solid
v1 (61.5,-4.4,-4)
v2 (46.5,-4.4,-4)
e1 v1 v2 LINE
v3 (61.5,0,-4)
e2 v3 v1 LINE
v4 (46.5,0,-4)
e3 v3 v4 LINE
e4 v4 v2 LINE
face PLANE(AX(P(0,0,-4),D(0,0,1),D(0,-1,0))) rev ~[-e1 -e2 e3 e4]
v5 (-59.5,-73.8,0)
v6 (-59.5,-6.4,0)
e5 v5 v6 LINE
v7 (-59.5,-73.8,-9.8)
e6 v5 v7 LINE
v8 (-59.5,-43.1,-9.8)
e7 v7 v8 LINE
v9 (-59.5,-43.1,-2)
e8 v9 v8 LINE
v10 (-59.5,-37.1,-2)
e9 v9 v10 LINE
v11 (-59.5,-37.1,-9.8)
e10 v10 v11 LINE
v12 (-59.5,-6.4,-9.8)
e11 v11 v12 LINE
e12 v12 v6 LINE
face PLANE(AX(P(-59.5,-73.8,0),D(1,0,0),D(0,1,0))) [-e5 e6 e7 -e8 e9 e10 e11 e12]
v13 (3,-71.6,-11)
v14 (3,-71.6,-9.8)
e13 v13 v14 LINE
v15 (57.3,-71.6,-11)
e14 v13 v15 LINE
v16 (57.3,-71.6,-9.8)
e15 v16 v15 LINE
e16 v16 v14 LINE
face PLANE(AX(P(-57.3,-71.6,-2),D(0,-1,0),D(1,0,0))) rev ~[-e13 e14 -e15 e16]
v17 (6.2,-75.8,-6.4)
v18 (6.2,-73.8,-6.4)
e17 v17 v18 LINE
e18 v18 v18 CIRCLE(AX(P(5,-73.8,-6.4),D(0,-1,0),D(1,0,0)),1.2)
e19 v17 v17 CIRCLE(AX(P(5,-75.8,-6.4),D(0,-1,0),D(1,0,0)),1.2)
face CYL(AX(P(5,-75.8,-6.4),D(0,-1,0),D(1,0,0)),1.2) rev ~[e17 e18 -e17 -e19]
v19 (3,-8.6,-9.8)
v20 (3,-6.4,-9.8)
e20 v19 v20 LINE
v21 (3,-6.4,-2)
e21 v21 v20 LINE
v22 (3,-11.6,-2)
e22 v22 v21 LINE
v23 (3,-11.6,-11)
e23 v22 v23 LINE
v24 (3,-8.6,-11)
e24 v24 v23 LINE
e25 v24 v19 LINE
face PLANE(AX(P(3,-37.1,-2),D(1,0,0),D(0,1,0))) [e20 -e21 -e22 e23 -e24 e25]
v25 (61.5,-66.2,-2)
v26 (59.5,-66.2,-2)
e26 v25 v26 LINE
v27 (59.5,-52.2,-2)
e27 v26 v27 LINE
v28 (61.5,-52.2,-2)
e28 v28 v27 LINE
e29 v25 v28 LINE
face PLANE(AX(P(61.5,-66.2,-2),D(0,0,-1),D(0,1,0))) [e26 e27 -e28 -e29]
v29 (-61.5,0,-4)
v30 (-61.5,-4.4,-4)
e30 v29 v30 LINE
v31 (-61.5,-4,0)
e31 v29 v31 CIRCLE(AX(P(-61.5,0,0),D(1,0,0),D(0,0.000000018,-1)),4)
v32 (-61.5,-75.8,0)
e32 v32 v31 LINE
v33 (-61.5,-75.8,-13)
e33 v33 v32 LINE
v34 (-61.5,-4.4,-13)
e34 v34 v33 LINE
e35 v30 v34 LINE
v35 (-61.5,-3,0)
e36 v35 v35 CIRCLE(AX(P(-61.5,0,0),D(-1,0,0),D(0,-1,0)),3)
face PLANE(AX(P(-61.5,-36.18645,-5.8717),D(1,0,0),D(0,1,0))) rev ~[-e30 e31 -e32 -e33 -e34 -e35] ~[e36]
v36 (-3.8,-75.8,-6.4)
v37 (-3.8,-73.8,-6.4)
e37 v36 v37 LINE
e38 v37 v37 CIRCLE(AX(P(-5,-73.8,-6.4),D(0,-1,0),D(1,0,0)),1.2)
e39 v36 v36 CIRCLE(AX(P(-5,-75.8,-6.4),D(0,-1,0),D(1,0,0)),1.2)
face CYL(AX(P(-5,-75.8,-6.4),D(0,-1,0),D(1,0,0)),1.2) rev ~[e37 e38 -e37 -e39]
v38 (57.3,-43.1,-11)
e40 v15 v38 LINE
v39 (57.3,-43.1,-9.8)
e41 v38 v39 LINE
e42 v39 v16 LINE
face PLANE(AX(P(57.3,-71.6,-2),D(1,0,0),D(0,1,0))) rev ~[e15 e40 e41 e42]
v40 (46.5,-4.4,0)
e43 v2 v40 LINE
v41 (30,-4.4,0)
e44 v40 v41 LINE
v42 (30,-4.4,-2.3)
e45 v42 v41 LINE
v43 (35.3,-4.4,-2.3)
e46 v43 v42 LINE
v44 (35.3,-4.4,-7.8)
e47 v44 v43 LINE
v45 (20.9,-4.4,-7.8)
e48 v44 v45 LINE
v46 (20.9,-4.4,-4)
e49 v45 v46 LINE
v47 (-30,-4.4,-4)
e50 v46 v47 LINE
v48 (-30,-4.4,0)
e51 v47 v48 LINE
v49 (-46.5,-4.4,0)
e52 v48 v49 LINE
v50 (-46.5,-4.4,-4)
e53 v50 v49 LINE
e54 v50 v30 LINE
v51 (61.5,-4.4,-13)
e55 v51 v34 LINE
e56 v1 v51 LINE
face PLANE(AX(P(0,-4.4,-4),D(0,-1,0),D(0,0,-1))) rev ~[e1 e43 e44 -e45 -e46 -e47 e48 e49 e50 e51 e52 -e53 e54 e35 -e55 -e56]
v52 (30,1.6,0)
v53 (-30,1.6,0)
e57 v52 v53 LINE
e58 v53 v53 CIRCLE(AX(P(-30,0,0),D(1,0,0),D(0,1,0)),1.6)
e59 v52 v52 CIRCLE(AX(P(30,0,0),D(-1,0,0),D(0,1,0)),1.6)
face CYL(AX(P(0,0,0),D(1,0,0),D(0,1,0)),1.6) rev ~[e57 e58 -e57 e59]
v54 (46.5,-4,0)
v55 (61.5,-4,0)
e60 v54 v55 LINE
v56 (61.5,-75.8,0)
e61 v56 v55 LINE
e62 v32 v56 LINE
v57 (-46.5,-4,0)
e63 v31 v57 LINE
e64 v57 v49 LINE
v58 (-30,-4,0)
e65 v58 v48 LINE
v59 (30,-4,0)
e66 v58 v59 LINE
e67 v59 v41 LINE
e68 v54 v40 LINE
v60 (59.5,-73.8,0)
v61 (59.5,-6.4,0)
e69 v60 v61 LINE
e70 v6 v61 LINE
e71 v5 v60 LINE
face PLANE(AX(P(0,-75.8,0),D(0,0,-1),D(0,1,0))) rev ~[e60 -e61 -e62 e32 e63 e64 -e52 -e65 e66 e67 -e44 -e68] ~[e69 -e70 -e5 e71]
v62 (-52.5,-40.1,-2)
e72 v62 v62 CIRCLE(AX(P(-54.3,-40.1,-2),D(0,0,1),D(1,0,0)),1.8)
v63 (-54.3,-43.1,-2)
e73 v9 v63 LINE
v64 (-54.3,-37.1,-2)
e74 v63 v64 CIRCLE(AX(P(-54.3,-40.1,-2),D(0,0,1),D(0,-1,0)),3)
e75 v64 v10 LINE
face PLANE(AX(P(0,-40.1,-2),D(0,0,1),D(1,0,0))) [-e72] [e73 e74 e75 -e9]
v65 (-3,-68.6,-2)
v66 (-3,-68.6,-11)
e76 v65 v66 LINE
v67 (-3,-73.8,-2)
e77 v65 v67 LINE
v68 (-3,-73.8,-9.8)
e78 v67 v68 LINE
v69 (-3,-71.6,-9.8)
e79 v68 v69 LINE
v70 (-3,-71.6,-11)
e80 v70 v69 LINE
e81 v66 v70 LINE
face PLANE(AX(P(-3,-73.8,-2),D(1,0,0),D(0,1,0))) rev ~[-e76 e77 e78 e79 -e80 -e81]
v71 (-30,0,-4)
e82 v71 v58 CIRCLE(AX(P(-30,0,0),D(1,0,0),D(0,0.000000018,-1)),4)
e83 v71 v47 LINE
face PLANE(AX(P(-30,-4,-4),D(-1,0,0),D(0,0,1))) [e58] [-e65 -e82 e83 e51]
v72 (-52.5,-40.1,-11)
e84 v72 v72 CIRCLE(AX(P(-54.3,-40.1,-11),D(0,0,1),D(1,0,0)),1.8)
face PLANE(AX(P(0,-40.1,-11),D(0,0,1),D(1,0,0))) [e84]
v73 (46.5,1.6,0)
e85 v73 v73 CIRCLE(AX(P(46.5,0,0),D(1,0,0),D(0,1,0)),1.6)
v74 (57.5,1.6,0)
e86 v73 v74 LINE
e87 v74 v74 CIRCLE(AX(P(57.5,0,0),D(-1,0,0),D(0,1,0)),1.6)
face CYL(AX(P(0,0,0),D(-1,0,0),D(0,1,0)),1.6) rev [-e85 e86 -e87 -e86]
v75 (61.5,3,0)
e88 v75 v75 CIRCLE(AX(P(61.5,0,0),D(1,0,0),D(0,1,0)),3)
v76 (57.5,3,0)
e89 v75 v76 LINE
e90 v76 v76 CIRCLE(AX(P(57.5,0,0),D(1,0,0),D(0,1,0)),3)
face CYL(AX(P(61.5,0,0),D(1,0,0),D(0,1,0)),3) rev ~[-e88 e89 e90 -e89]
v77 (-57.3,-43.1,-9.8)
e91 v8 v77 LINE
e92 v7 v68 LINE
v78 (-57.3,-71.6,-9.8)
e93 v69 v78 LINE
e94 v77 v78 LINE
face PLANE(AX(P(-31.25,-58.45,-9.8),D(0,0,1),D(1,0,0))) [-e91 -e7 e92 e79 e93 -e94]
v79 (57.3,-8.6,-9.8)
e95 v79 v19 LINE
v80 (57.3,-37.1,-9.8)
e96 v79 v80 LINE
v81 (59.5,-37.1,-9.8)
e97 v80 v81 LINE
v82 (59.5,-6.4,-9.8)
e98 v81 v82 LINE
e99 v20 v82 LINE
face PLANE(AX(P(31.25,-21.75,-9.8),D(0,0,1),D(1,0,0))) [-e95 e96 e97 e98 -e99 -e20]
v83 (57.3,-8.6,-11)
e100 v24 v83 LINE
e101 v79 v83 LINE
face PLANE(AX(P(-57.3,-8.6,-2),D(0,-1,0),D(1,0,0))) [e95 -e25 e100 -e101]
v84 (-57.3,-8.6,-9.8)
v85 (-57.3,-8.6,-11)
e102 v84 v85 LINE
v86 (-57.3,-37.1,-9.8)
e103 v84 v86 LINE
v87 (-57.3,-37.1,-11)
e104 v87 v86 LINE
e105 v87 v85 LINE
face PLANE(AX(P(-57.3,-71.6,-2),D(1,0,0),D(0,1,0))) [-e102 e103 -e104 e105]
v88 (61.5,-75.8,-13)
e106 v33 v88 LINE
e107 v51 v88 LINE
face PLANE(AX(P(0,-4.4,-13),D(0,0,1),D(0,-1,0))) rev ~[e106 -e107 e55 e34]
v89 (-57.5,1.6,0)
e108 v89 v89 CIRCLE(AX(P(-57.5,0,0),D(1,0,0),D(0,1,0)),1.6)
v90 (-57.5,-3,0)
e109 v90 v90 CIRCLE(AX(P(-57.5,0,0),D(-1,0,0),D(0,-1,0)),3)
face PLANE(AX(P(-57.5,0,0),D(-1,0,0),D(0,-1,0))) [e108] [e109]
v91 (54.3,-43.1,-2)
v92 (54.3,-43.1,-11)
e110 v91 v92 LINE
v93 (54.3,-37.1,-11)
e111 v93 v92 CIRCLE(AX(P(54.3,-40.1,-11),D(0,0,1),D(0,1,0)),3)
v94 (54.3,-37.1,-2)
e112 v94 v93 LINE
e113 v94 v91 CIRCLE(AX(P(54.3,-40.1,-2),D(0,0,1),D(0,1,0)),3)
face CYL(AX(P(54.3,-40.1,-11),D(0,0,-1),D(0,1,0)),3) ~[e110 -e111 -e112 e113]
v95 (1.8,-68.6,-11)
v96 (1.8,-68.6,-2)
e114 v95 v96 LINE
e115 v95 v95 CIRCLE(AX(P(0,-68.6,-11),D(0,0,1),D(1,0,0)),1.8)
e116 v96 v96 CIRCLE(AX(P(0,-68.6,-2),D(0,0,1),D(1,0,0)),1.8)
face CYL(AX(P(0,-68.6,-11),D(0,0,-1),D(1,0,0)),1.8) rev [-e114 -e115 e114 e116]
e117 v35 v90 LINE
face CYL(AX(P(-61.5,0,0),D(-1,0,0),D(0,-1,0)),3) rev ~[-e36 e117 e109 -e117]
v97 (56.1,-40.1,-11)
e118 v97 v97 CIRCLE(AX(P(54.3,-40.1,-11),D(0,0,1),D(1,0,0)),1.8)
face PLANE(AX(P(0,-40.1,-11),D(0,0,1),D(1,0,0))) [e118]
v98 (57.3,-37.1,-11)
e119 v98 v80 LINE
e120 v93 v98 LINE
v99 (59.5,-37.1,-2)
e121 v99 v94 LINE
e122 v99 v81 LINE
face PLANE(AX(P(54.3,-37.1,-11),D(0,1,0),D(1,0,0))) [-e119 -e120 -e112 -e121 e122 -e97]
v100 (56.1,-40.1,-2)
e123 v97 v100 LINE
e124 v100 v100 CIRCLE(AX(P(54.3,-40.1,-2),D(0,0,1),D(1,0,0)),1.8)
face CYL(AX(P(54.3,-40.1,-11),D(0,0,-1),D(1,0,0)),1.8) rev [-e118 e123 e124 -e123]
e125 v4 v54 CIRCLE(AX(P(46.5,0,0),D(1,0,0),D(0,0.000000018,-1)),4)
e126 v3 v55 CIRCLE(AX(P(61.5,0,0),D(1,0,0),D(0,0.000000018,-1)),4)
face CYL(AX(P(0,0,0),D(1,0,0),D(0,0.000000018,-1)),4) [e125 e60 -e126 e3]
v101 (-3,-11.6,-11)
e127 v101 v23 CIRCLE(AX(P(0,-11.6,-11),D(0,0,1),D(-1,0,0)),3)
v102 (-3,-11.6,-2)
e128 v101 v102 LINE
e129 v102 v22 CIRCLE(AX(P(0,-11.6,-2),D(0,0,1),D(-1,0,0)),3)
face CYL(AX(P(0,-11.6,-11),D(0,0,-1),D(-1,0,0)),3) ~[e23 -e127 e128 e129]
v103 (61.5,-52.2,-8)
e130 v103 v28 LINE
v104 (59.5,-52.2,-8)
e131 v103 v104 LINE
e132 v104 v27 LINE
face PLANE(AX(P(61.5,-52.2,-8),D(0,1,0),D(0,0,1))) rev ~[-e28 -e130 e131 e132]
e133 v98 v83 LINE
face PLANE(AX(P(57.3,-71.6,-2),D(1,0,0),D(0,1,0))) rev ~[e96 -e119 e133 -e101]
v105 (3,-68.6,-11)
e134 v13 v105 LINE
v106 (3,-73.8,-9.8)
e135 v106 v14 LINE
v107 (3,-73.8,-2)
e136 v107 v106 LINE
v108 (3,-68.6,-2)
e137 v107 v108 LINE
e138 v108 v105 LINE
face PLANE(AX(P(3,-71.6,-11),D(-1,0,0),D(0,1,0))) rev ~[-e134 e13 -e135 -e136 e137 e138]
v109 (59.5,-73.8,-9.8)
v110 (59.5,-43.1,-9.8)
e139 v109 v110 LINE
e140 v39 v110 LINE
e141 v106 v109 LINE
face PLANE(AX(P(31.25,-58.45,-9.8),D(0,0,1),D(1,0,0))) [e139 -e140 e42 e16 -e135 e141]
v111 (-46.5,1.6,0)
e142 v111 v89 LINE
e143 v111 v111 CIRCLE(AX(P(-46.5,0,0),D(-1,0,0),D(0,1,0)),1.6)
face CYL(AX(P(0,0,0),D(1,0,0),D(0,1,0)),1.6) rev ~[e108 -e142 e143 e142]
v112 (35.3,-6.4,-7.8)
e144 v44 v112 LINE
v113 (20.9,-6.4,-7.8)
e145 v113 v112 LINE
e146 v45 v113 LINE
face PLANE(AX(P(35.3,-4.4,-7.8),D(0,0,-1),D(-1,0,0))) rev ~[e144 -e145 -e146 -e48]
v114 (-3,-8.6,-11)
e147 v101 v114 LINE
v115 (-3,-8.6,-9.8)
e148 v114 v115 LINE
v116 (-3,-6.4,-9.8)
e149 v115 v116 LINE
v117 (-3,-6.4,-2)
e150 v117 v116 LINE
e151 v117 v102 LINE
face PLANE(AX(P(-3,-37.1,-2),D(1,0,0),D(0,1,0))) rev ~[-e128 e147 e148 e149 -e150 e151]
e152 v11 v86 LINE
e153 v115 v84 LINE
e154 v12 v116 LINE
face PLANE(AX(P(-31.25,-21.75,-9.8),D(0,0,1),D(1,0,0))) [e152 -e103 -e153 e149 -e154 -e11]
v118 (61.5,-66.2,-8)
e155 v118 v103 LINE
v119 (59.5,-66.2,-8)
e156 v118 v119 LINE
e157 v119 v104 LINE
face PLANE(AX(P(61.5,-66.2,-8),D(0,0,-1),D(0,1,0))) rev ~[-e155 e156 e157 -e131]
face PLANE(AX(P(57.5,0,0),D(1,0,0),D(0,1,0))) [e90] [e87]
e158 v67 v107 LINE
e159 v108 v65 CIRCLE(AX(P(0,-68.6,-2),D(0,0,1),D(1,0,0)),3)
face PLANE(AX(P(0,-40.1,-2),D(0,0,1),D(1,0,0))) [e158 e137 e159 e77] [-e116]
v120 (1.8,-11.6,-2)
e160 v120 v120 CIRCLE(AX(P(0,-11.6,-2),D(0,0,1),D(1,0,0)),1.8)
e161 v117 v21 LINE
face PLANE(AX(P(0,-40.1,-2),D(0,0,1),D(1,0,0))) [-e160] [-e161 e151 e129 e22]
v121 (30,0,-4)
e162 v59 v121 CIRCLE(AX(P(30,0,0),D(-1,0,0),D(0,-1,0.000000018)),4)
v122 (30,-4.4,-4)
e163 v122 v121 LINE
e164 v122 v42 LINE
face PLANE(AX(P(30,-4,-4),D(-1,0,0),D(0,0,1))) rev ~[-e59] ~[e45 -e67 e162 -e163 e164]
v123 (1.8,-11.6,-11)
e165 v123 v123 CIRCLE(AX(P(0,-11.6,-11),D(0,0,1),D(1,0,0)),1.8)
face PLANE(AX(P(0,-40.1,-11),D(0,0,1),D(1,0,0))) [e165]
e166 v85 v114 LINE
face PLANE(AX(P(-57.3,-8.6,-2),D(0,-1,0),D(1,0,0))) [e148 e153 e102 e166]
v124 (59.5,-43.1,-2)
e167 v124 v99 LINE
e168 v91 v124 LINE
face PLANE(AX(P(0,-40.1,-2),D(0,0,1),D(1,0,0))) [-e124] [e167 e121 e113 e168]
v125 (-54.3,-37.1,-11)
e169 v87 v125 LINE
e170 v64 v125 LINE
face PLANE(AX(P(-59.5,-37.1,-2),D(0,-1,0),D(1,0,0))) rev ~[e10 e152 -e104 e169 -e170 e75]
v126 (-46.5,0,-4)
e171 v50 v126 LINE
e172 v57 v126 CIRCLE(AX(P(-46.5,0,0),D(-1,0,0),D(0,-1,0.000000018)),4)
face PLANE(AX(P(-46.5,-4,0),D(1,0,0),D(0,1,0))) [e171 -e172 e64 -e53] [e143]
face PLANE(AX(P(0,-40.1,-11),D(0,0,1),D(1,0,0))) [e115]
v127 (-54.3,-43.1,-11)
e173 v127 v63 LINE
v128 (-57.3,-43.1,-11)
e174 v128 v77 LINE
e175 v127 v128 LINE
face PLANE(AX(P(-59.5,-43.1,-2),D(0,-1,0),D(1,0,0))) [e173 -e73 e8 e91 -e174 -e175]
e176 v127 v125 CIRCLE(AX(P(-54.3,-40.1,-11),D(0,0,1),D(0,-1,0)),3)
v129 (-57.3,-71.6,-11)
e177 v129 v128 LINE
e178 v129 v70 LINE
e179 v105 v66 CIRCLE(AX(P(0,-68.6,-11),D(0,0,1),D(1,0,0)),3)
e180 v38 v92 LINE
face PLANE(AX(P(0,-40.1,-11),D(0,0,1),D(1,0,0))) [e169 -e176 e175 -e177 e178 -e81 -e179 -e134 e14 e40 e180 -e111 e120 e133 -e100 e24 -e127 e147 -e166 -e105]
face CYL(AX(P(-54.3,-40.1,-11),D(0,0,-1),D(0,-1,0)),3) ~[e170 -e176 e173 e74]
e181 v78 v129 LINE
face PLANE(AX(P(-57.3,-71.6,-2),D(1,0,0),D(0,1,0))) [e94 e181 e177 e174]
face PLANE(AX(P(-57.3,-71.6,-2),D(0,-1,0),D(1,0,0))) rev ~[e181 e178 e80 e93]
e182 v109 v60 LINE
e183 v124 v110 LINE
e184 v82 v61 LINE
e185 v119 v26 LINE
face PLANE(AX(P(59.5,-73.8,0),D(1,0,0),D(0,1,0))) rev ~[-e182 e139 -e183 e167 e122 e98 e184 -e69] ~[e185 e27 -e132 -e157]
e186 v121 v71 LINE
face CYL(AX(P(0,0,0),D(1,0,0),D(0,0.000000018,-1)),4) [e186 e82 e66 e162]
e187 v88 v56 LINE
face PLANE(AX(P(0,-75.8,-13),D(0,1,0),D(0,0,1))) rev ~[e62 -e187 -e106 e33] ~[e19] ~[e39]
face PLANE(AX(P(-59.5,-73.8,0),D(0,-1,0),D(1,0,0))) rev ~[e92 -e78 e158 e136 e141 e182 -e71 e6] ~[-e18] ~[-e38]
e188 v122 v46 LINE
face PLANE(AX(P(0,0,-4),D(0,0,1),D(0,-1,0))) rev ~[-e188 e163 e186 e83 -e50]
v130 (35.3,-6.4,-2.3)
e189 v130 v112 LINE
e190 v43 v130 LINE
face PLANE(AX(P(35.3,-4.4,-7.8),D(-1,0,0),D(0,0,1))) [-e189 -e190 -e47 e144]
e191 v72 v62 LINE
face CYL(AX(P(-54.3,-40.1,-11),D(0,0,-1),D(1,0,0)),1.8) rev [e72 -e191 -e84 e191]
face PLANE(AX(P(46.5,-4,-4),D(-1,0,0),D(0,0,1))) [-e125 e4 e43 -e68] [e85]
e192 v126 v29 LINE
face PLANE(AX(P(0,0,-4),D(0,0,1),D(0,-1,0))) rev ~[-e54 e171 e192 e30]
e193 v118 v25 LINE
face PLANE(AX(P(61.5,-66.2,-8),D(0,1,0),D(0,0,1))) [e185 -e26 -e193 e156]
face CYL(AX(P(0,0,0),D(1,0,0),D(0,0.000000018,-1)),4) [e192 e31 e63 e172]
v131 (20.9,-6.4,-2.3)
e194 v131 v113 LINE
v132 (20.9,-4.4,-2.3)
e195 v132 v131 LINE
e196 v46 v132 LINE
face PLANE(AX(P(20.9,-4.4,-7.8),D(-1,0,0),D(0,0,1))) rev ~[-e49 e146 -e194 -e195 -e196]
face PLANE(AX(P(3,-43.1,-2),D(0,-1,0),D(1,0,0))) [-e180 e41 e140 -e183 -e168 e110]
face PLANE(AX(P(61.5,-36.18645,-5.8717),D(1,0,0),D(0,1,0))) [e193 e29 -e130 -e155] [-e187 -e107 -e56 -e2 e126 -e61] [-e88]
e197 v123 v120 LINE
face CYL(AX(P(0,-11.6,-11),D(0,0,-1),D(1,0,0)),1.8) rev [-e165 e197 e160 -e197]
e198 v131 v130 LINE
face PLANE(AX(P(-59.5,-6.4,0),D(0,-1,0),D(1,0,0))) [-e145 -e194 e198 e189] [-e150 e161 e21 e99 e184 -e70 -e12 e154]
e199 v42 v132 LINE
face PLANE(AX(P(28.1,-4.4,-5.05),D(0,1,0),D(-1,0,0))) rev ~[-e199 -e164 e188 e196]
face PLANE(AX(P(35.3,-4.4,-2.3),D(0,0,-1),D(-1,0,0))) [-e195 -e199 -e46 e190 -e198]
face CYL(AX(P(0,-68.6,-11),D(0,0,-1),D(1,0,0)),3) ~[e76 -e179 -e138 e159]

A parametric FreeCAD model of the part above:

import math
import FreeCAD as App
import Part
import Sketcher
from FreeCAD import Vector
Q = App.Units.Quantity

doc = App.newDocument("Part")
params = doc.addObject("Spreadsheet::Sheet", "Params")
for row, (alias, value) in enumerate([
    ("sketch1_radius", "4 mm"),
    ("sketch1_diameter", "3.2 mm"),
    ("sketch1_height", "13 mm"),
    ("sketch1_width", "71.8 mm"),
    ("sketch1_width2", "71.4 mm"),
    ("pad1_length", "61.5 mm"),
    ("pad1_length2", "61.5 mm"),
    ("sketch2_height", "8 mm"),
    ("sketch2_width", "16.5 mm"),
    ("sketch3_width", "119 mm"),
    ("sketch3_height", "67.4 mm"),
    ("pocket2_length", "2 mm"),
    ("sketch4_height", "63 mm"),
    ("sketch4_width", "114.6 mm"),
    ("pocket3_length", "9 mm"),
    ("sketch5_radius", "3 mm"),
    ("sketch5_diameter", "3.6 mm"),
    ("sketch5_width", "3 mm"),
    ("pad2_length", "9 mm"),
    ("sketch6_width", "56.5 mm"),
    ("sketch6_height", "30.7 mm"),
    ("pocket4_length", "7.8 mm"),
    ("sketch7_diameter", "2.4 mm"),
    ("pocket5_length", "2 mm"),
    ("sketch8_height", "4 mm"),
    ("sketch8_width", "16.5 mm"),
    ("pocket6_length", "0.4 mm"),
    ("sketch9_width", "14.4 mm"),
    ("sketch9_height", "5.5 mm"),
    ("pocket7_length", "2.2 mm"),
    ("sketch10_width", "14 mm"),
    ("sketch10_height", "6 mm"),
    ("pocket8_length", "2 mm"),
    ("sketch11_diameter", "6 mm"),
    ("pocket9_length", "4 mm"),
    ("sketch12_diameter", "6 mm"),
    ("pocket10_length", "4 mm"),
], start=1):
    params.set(f"A{row}", alias)
    params.set(f"B{row}", "=" + value)
    params.setAlias(f"B{row}", alias)

body = doc.addObject("PartDesign::Body", "Body")

# Sketch on YZ plane
sketch1 = doc.addObject("Sketcher::SketchObject", "Sketch")
body.addObject(sketch1)
sketch1.AttachmentSupport = (doc.YZ_Plane, [""])
sketch1.MapMode = "FlatFace"
sketch1.addGeometry(Part.ArcOfCircle(Part.Circle(Vector(0, 0, 0), Vector(0, 0, 1), 4), math.radians(-90), math.radians(180)), False)
sketch1.addGeometry(Part.LineSegment(Vector(-4, 0, 0), Vector(-75.8, 0, 0)), False)
sketch1.addGeometry(Part.LineSegment(Vector(-75.8, 0, 0), Vector(-75.8, -13, 0)), False)
sketch1.addGeometry(Part.LineSegment(Vector(-75.8, -13, 0), Vector(-4.4, -13, 0)), False)
sketch1.addGeometry(Part.LineSegment(Vector(-4.4, -13, 0), Vector(-4.4, -4, 0)), False)
sketch1.addGeometry(Part.LineSegment(Vector(-4.4, -4, 0), Vector(0, -4, 0)), False)
sketch1.addGeometry(Part.Circle(Vector(0, 0, 0), Vector(0, 0, 1), 1.6), False)
sketch1.addConstraint(Sketcher.Constraint("Coincident", 0, 2, 1, 1))
sketch1.addConstraint(Sketcher.Constraint("Coincident", 1, 2, 2, 1))
sketch1.addConstraint(Sketcher.Constraint("Coincident", 2, 2, 3, 1))
sketch1.addConstraint(Sketcher.Constraint("Coincident", 3, 2, 4, 1))
sketch1.addConstraint(Sketcher.Constraint("Coincident", 4, 2, 5, 1))
sketch1.addConstraint(Sketcher.Constraint("Tangent", 5, 2, 0, 1))
sketch1.addConstraint(Sketcher.Constraint("Horizontal", 1))
sketch1.addConstraint(Sketcher.Constraint("Vertical", 2))
sketch1.addConstraint(Sketcher.Constraint("Horizontal", 3))
sketch1.addConstraint(Sketcher.Constraint("Vertical", 4))
sketch1.addConstraint(Sketcher.Constraint("Horizontal", 5))
sketch1.addConstraint(Sketcher.Constraint("Coincident", 0, 3, -1, 1))
sketch1.addConstraint(Sketcher.Constraint("Coincident", 6, 3, -1, 1))
sketch1.addConstraint(Sketcher.Constraint("PointOnObject", 0, 2, -1))
sketch1.addConstraint(Sketcher.Constraint("Radius", 0, Q("4 mm")))
sketch1.addConstraint(Sketcher.Constraint("Diameter", 6, Q("3.2 mm")))
sketch1.addConstraint(Sketcher.Constraint("DistanceY", 2, 2, 2, 1, Q("13 mm")))
sketch1.addConstraint(Sketcher.Constraint("DistanceX", 1, 2, 1, 1, Q("71.8 mm")))
sketch1.addConstraint(Sketcher.Constraint("DistanceX", 3, 1, 3, 2, Q("71.4 mm")))
sketch1.setExpression("Constraints[14]", "Params.sketch1_radius")
sketch1.setExpression("Constraints[15]", "Params.sketch1_diameter")
sketch1.setExpression("Constraints[16]", "Params.sketch1_height")
sketch1.setExpression("Constraints[17]", "Params.sketch1_width")
sketch1.setExpression("Constraints[18]", "Params.sketch1_width2")
pad1 = doc.addObject("PartDesign::Pad", "Pad")
body.addObject(pad1)
pad1.Profile = sketch1
pad1.Type = "TwoLengths"
pad1.setExpression("Length", "Params.pad1_length")
pad1.setExpression("Length2", "Params.pad1_length2")

# Sketch on XY plane
sketch2 = doc.addObject("Sketcher::SketchObject", "Sketch001")
body.addObject(sketch2)
sketch2.AttachmentSupport = (doc.XY_Plane, [""])
sketch2.MapMode = "FlatFace"
sketch2.addGeometry(Part.LineSegment(Vector(-46, 4, 0), Vector(-46, -4, 0)), False)
sketch2.addGeometry(Part.LineSegment(Vector(-46, -4, 0), Vector(-30, -4, 0)), False)
sketch2.addGeometry(Part.LineSegment(Vector(-30, -4, 0), Vector(-30, 4, 0)), False)
sketch2.addGeometry(Part.LineSegment(Vector(-30, 4, 0), Vector(-46, 4, 0)), False)
sketch2.addGeometry(Part.LineSegment(Vector(30, 4, 0), Vector(30, -4, 0)), False)
sketch2.addGeometry(Part.LineSegment(Vector(30, -4, 0), Vector(46, -4, 0)), False)
sketch2.addGeometry(Part.LineSegment(Vector(46, -4, 0), Vector(46, 4, 0)), False)
sketch2.addGeometry(Part.LineSegment(Vector(46, 4, 0), Vector(30, 4, 0)), False)
sketch2.addConstraint(Sketcher.Constraint("Coincident", 0, 2, 1, 1))
sketch2.addConstraint(Sketcher.Constraint("Coincident", 1, 2, 2, 1))
sketch2.addConstraint(Sketcher.Constraint("Coincident", 2, 2, 3, 1))
sketch2.addConstraint(Sketcher.Constraint("Coincident", 3, 2, 0, 1))
sketch2.addConstraint(Sketcher.Constraint("Coincident", 4, 2, 5, 1))
sketch2.addConstraint(Sketcher.Constraint("Coincident", 5, 2, 6, 1))
sketch2.addConstraint(Sketcher.Constraint("Coincident", 6, 2, 7, 1))
sketch2.addConstraint(Sketcher.Constraint("Coincident", 7, 2, 4, 1))
sketch2.addConstraint(Sketcher.Constraint("Vertical", 0))
sketch2.addConstraint(Sketcher.Constraint("Horizontal", 1))
sketch2.addConstraint(Sketcher.Constraint("Vertical", 2))
sketch2.addConstraint(Sketcher.Constraint("Horizontal", 3))
sketch2.addConstraint(Sketcher.Constraint("Vertical", 4))
sketch2.addConstraint(Sketcher.Constraint("Horizontal", 5))
sketch2.addConstraint(Sketcher.Constraint("Vertical", 6))
sketch2.addConstraint(Sketcher.Constraint("Horizontal", 7))
sketch2.addConstraint(Sketcher.Constraint("Symmetric", 2, 2, 4, 2, -1, 1))
sketch2.addConstraint(Sketcher.Constraint("Symmetric", 0, 2, 6, 2, -1, 1))
sketch2.addConstraint(Sketcher.Constraint("Horizontal", 1, 2, 4, 2))
sketch2.addConstraint(Sketcher.Constraint("DistanceY", 0, 2, 0, 1, Q("8 mm")))
sketch2.addConstraint(Sketcher.Constraint("DistanceX", 1, 1, 1, 2, Q("16.5 mm")))
sketch2.addConstraint(Sketcher.Constraint("DistanceX", 1, 2, -1, 1, Q("30 mm")))
sketch2.setExpression("Constraints[19]", "Params.sketch2_height")
sketch2.setExpression("Constraints[20]", "Params.sketch2_width")
pocket1 = doc.addObject("PartDesign::Pocket", "Pocket")
body.addObject(pocket1)
pocket1.Profile = sketch2
pocket1.Type = "ThroughAll"
pocket1.Midplane = True

# Sketch on XY plane
sketch3 = doc.addObject("Sketcher::SketchObject", "Sketch002")
body.addObject(sketch3)
sketch3.AttachmentSupport = (doc.XY_Plane, [""])
sketch3.MapMode = "FlatFace"
sketch3.addGeometry(Part.LineSegment(Vector(-60, -6, 0), Vector(-60, -74, 0)), False)
sketch3.addGeometry(Part.LineSegment(Vector(-60, -74, 0), Vector(60, -74, 0)), False)
sketch3.addGeometry(Part.LineSegment(Vector(60, -74, 0), Vector(60, -6, 0)), False)
sketch3.addGeometry(Part.LineSegment(Vector(60, -6, 0), Vector(-60, -6, 0)), False)
sketch3.addConstraint(Sketcher.Constraint("Coincident", 0, 2, 1, 1))
sketch3.addConstraint(Sketcher.Constraint("Coincident", 1, 2, 2, 1))
sketch3.addConstraint(Sketcher.Constraint("Coincident", 2, 2, 3, 1))
sketch3.addConstraint(Sketcher.Constraint("Coincident", 3, 2, 0, 1))
sketch3.addConstraint(Sketcher.Constraint("Vertical", 0))
sketch3.addConstraint(Sketcher.Constraint("Horizontal", 1))
sketch3.addConstraint(Sketcher.Constraint("Vertical", 2))
sketch3.addConstraint(Sketcher.Constraint("Horizontal", 3))
sketch3.addConstraint(Sketcher.Constraint("DistanceX", 1, 1, 1, 2, Q("119 mm")))
sketch3.addConstraint(Sketcher.Constraint("DistanceY", 0, 2, 0, 1, Q("67.4 mm")))
sketch3.addConstraint(Sketcher.Constraint("DistanceX", 0, 2, -1, 1, Q("59.5 mm")))
sketch3.addConstraint(Sketcher.Constraint("DistanceY", 0, 2, -1, 1, Q("73.8 mm")))
sketch3.setExpression("Constraints[8]", "Params.sketch3_width")
sketch3.setExpression("Constraints[9]", "Params.sketch3_height")
pocket2 = doc.addObject("PartDesign::Pocket", "Pocket001")
body.addObject(pocket2)
pocket2.Profile = sketch3
pocket2.setExpression("Length", "Params.pocket2_length")

# Sketch on XY plane
sketch4 = doc.addObject("Sketcher::SketchObject", "Sketch003")
body.addObject(sketch4)
sketch4.AttachmentSupport = (doc.XY_Plane, [""])
sketch4.MapMode = "FlatFace"
sketch4.AttachmentOffset = App.Placement(Vector(0, 0, -2), App.Rotation())
sketch4.addGeometry(Part.LineSegment(Vector(-57, -9, 0), Vector(-57, -72, 0)), False)
sketch4.addGeometry(Part.LineSegment(Vector(-57, -72, 0), Vector(57, -72, 0)), False)
sketch4.addGeometry(Part.LineSegment(Vector(57, -72, 0), Vector(57, -9, 0)), False)
sketch4.addGeometry(Part.LineSegment(Vector(57, -9, 0), Vector(-57, -9, 0)), False)
sketch4.addConstraint(Sketcher.Constraint("Coincident", 0, 2, 1, 1))
sketch4.addConstraint(Sketcher.Constraint("Coincident", 1, 2, 2, 1))
sketch4.addConstraint(Sketcher.Constraint("Coincident", 2, 2, 3, 1))
sketch4.addConstraint(Sketcher.Constraint("Coincident", 3, 2, 0, 1))
sketch4.addConstraint(Sketcher.Constraint("Vertical", 0))
sketch4.addConstraint(Sketcher.Constraint("Horizontal", 1))
sketch4.addConstraint(Sketcher.Constraint("Vertical", 2))
sketch4.addConstraint(Sketcher.Constraint("Horizontal", 3))
sketch4.addConstraint(Sketcher.Constraint("DistanceY", 0, 2, 0, 1, Q("63 mm")))
sketch4.addConstraint(Sketcher.Constraint("DistanceX", 1, 1, 1, 2, Q("114.6 mm")))
sketch4.addConstraint(Sketcher.Constraint("DistanceX", 0, 2, -1, 1, Q("57.3 mm")))
sketch4.addConstraint(Sketcher.Constraint("DistanceY", 0, 2, -1, 1, Q("71.6 mm")))
sketch4.setExpression("Constraints[8]", "Params.sketch4_height")
sketch4.setExpression("Constraints[9]", "Params.sketch4_width")
pocket3 = doc.addObject("PartDesign::Pocket", "Pocket002")
body.addObject(pocket3)
pocket3.Profile = sketch4
pocket3.setExpression("Length", "Params.pocket3_length")

# Sketch on XY plane
sketch5 = doc.addObject("Sketcher::SketchObject", "Sketch004")
body.addObject(sketch5)
sketch5.AttachmentSupport = (doc.XY_Plane, [""])
sketch5.MapMode = "FlatFace"
sketch5.AttachmentOffset = App.Placement(Vector(0, 0, -11), App.Rotation())
sketch5.addGeometry(Part.ArcOfCircle(Part.Circle(Vector(-54.3, -40.1, 0), Vector(0, 0, 1), 3), math.radians(-90), math.radians(90)), False)
sketch5.addGeometry(Part.LineSegment(Vector(-54.3, -37.1, 0), Vector(-57.3, -37.1, 0)), False)
sketch5.addGeometry(Part.LineSegment(Vector(-57.3, -37.1, 0), Vector(-57.3, -43.1, 0)), False)
sketch5.addGeometry(Part.LineSegment(Vector(-57.3, -43.1, 0), Vector(-54.3, -43.1, 0)), False)
sketch5.addGeometry(Part.Circle(Vector(-54.3, -40.1, 0), Vector(0, 0, 1), 1.8), False)
sketch5.addGeometry(Part.ArcOfCircle(Part.Circle(Vector(0, -11.6, 0), Vector(0, 0, 1), 3), math.radians(180), math.radians(360)), False)
sketch5.addGeometry(Part.LineSegment(Vector(3, -11.6, 0), Vector(3, -8.6, 0)), False)
sketch5.addGeometry(Part.LineSegment(Vector(3, -8.6, 0), Vector(-3, -8.6, 0)), False)
sketch5.addGeometry(Part.LineSegment(Vector(-3, -8.6, 0), Vector(-3, -11.6, 0)), False)
sketch5.addGeometry(Part.Circle(Vector(0, -11.6, 0), Vector(0, 0, 1), 1.8), False)
sketch5.addGeometry(Part.ArcOfCircle(Part.Circle(Vector(54.3, -40.1, 0), Vector(0, 0, 1), 3), math.radians(90), math.radians(270)), False)
sketch5.addGeometry(Part.LineSegment(Vector(54.3, -43.1, 0), Vector(57.3, -43.1, 0)), False)
sketch5.addGeometry(Part.LineSegment(Vector(57.3, -43.1, 0), Vector(57.3, -37.1, 0)), False)
sketch5.addGeometry(Part.LineSegment(Vector(57.3, -37.1, 0), Vector(54.3, -37.1, 0)), False)
sketch5.addGeometry(Part.Circle(Vector(54.3, -40.1, 0), Vector(0, 0, 1), 1.8), False)
sketch5.addGeometry(Part.ArcOfCircle(Part.Circle(Vector(0, -68.6, 0), Vector(0, 0, 1), 3), math.radians(0), math.radians(180)), False)
sketch5.addGeometry(Part.LineSegment(Vector(-3, -68.6, 0), Vector(-3, -71.6, 0)), False)
sketch5.addGeometry(Part.LineSegment(Vector(-3, -71.6, 0), Vector(3, -71.6, 0)), False)
sketch5.addGeometry(Part.LineSegment(Vector(3, -71.6, 0), Vector(3, -68.6, 0)), False)
sketch5.addGeometry(Part.Circle(Vector(0, -68.6, 0), Vector(0, 0, 1), 1.8), False)
sketch5.addConstraint(Sketcher.Constraint("Tangent", 0, 2, 1, 1))
sketch5.addConstraint(Sketcher.Constraint("Coincident", 1, 2, 2, 1))
sketch5.addConstraint(Sketcher.Constraint("Coincident", 2, 2, 3, 1))
sketch5.addConstraint(Sketcher.Constraint("Tangent", 3, 2, 0, 1))
sketch5.addConstraint(Sketcher.Constraint("Tangent", 5, 2, 6, 1))
sketch5.addConstraint(Sketcher.Constraint("Coincident", 6, 2, 7, 1))
sketch5.addConstraint(Sketcher.Constraint("Coincident", 7, 2, 8, 1))
sketch5.addConstraint(Sketcher.Constraint("Tangent", 8, 2, 5, 1))
sketch5.addConstraint(Sketcher.Constraint("Tangent", 10, 2, 11, 1))
sketch5.addConstraint(Sketcher.Constraint("Coincident", 11, 2, 12, 1))
sketch5.addConstraint(Sketcher.Constraint("Coincident", 12, 2, 13, 1))
sketch5.addConstraint(Sketcher.Constraint("Tangent", 13, 2, 10, 1))
sketch5.addConstraint(Sketcher.Constraint("Tangent", 15, 2, 16, 1))
sketch5.addConstraint(Sketcher.Constraint("Coincident", 16, 2, 17, 1))
sketch5.addConstraint(Sketcher.Constraint("Coincident", 17, 2, 18, 1))
sketch5.addConstraint(Sketcher.Constraint("Tangent", 18, 2, 15, 1))
sketch5.addConstraint(Sketcher.Constraint("Horizontal", 1))
sketch5.addConstraint(Sketcher.Constraint("Vertical", 2))
sketch5.addConstraint(Sketcher.Constraint("Horizontal", 3))
sketch5.addConstraint(Sketcher.Constraint("Vertical", 6))
sketch5.addConstraint(Sketcher.Constraint("Horizontal", 7))
sketch5.addConstraint(Sketcher.Constraint("Vertical", 8))
sketch5.addConstraint(Sketcher.Constraint("Horizontal", 11))
sketch5.addConstraint(Sketcher.Constraint("Vertical", 12))
sketch5.addConstraint(Sketcher.Constraint("Horizontal", 13))
sketch5.addConstraint(Sketcher.Constraint("Vertical", 16))
sketch5.addConstraint(Sketcher.Constraint("Horizontal", 17))
sketch5.addConstraint(Sketcher.Constraint("Vertical", 18))
sketch5.addConstraint(Sketcher.Constraint("Coincident", 4, 3, 0, 3))
sketch5.addConstraint(Sketcher.Constraint("Coincident", 9, 3, 5, 3))
sketch5.addConstraint(Sketcher.Constraint("Coincident", 14, 3, 10, 3))
sketch5.addConstraint(Sketcher.Constraint("Coincident", 19, 3, 15, 3))
sketch5.addConstraint(Sketcher.Constraint("Equal", 0, 5))
sketch5.addConstraint(Sketcher.Constraint("Equal", 4, 9))
sketch5.addConstraint(Sketcher.Constraint("Equal", 5, 10))
sketch5.addConstraint(Sketcher.Constraint("Equal", 9, 14))
sketch5.addConstraint(Sketcher.Constraint("Equal", 10, 15))
sketch5.addConstraint(Sketcher.Constraint("Equal", 14, 19))
sketch5.addConstraint(Sketcher.Constraint("Symmetric", 0, 3, 10, 3, -2))
sketch5.addConstraint(Sketcher.Constraint("PointOnObject", 5, 3, -2))
sketch5.addConstraint(Sketcher.Constraint("PointOnObject", 15, 3, -2))
sketch5.addConstraint(Sketcher.Constraint("Equal", 3, 11))
sketch5.addConstraint(Sketcher.Constraint("Equal", 13, 6))
sketch5.addConstraint(Sketcher.Constraint("Equal", 8, 16))
sketch5.addConstraint(Sketcher.Constraint("Radius", 0, Q("3 mm")))
sketch5.addConstraint(Sketcher.Constraint("Diameter", 4, Q("3.6 mm")))
sketch5.addConstraint(Sketcher.Constraint("DistanceX", 1, 2, 1, 1, Q("3 mm")))
sketch5.addConstraint(Sketcher.Constraint("DistanceY", 15, 3, 5, 3, Q("57 mm")))
sketch5.addConstraint(Sketcher.Constraint("DistanceX", 0, 3, -1, 1, Q("54.3 mm")))
sketch5.addConstraint(Sketcher.Constraint("DistanceY", 0, 3, -1, 1, Q("40.1 mm")))
sketch5.addConstraint(Sketcher.Constraint("DistanceY", 5, 3, -1, 1, Q("11.6 mm")))
sketch5.setExpression("Constraints[44]", "Params.sketch5_radius")
sketch5.setExpression("Constraints[45]", "Params.sketch5_diameter")
sketch5.setExpression("Constraints[46]", "Params.sketch5_width")
pad2 = doc.addObject("PartDesign::Pad", "Pad001")
body.addObject(pad2)
pad2.Profile = sketch5
pad2.setExpression("Length", "Params.pad2_length")

# Sketch on XY plane
sketch6 = doc.addObject("Sketcher::SketchObject", "Sketch005")
body.addObject(sketch6)
sketch6.AttachmentSupport = (doc.XY_Plane, [""])
sketch6.MapMode = "FlatFace"
sketch6.AttachmentOffset = App.Placement(Vector(0, 0, -2), App.Rotation())
sketch6.addGeometry(Part.LineSegment(Vector(-60, -6, 0), Vector(-60, -37, 0)), False)
sketch6.addGeometry(Part.LineSegment(Vector(-60, -37, 0), Vector(-3, -37, 0)), False)
sketch6.addGeometry(Part.LineSegment(Vector(-3, -37, 0), Vector(-3, -6, 0)), False)
sketch6.addGeometry(Part.LineSegment(Vector(-3, -6, 0), Vector(-60, -6, 0)), False)
sketch6.addGeometry(Part.LineSegment(Vector(3, -6, 0), Vector(3, -37, 0)), False)
sketch6.addGeometry(Part.LineSegment(Vector(3, -37, 0), Vector(60, -37, 0)), False)
sketch6.addGeometry(Part.LineSegment(Vector(60, -37, 0), Vector(60, -6, 0)), False)
sketch6.addGeometry(Part.LineSegment(Vector(60, -6, 0), Vector(3, -6, 0)), False)
sketch6.addGeometry(Part.LineSegment(Vector(3, -43, 0), Vector(3, -74, 0)), False)
sketch6.addGeometry(Part.LineSegment(Vector(3, -74, 0), Vector(60, -74, 0)), False)
sketch6.addGeometry(Part.LineSegment(Vector(60, -74, 0), Vector(60, -43, 0)), False)
sketch6.addGeometry(Part.LineSegment(Vector(60, -43, 0), Vector(3, -43, 0)), False)
sketch6.addGeometry(Part.LineSegment(Vector(-60, -43, 0), Vector(-60, -74, 0)), False)
sketch6.addGeometry(Part.LineSegment(Vector(-60, -74, 0), Vector(-3, -74, 0)), False)
sketch6.addGeometry(Part.LineSegment(Vector(-3, -74, 0), Vector(-3, -43, 0)), False)
sketch6.addGeometry(Part.LineSegment(Vector(-3, -43, 0), Vector(-60, -43, 0)), False)
sketch6.addConstraint(Sketcher.Constraint("Coincident", 0, 2, 1, 1))
sketch6.addConstraint(Sketcher.Constraint("Coincident", 1, 2, 2, 1))
sketch6.addConstraint(Sketcher.Constraint("Coincident", 2, 2, 3, 1))
sketch6.addConstraint(Sketcher.Constraint("Coincident", 3, 2, 0, 1))
sketch6.addConstraint(Sketcher.Constraint("Coincident", 4, 2, 5, 1))
sketch6.addConstraint(Sketcher.Constraint("Coincident", 5, 2, 6, 1))
sketch6.addConstraint(Sketcher.Constraint("Coincident", 6, 2, 7, 1))
sketch6.addConstraint(Sketcher.Constraint("Coincident", 7, 2, 4, 1))
sketch6.addConstraint(Sketcher.Constraint("Coincident", 8, 2, 9, 1))
sketch6.addConstraint(Sketcher.Constraint("Coincident", 9, 2, 10, 1))
sketch6.addConstraint(Sketcher.Constraint("Coincident", 10, 2, 11, 1))
sketch6.addConstraint(Sketcher.Constraint("Coincident", 11, 2, 8, 1))
sketch6.addConstraint(Sketcher.Constraint("Coincident", 12, 2, 13, 1))
sketch6.addConstraint(Sketcher.Constraint("Coincident", 13, 2, 14, 1))
sketch6.addConstraint(Sketcher.Constraint("Coincident", 14, 2, 15, 1))
sketch6.addConstraint(Sketcher.Constraint("Coincident", 15, 2, 12, 1))
sketch6.addConstraint(Sketcher.Constraint("Vertical", 0))
sketch6.addConstraint(Sketcher.Constraint("Horizontal", 1))
sketch6.addConstraint(Sketcher.Constraint("Vertical", 2))
sketch6.addConstraint(Sketcher.Constraint("Horizontal", 3))
sketch6.addConstraint(Sketcher.Constraint("Vertical", 4))
sketch6.addConstraint(Sketcher.Constraint("Horizontal", 5))
sketch6.addConstraint(Sketcher.Constraint("Vertical", 6))
sketch6.addConstraint(Sketcher.Constraint("Horizontal", 7))
sketch6.addConstraint(Sketcher.Constraint("Vertical", 8))
sketch6.addConstraint(Sketcher.Constraint("Horizontal", 9))
sketch6.addConstraint(Sketcher.Constraint("Vertical", 10))
sketch6.addConstraint(Sketcher.Constraint("Horizontal", 11))
sketch6.addConstraint(Sketcher.Constraint("Vertical", 12))
sketch6.addConstraint(Sketcher.Constraint("Horizontal", 13))
sketch6.addConstraint(Sketcher.Constraint("Vertical", 14))
sketch6.addConstraint(Sketcher.Constraint("Horizontal", 15))
sketch6.addConstraint(Sketcher.Constraint("Symmetric", 1, 2, 4, 2, -2))
sketch6.addConstraint(Sketcher.Constraint("Symmetric", 3, 2, 6, 2, -2))
sketch6.addConstraint(Sketcher.Constraint("Symmetric", 9, 2, 12, 2, -2))
sketch6.addConstraint(Sketcher.Constraint("Symmetric", 11, 2, 14, 2, -2))
sketch6.addConstraint(Sketcher.Constraint("Vertical", 7, 2, 8, 2))
sketch6.addConstraint(Sketcher.Constraint("Vertical", 6, 2, 9, 2))
sketch6.addConstraint(Sketcher.Constraint("Equal", 6, 8))
sketch6.addConstraint(Sketcher.Constraint("DistanceX", 1, 1, 1, 2, Q("56.5 mm")))
sketch6.addConstraint(Sketcher.Constraint("DistanceY", 0, 2, 0, 1, Q("30.7 mm")))
sketch6.addConstraint(Sketcher.Constraint("DistanceX", 1, 2, -1, 1, Q("3 mm")))
sketch6.addConstraint(Sketcher.Constraint("DistanceY", 10, 2, 5, 2, Q("6 mm")))
sketch6.addConstraint(Sketcher.Constraint("DistanceY", 0, 2, -1, 1, Q("37.1 mm")))
sketch6.setExpression("Constraints[39]", "Params.sketch6_width")
sketch6.setExpression("Constraints[40]", "Params.sketch6_height")
pocket4 = doc.addObject("PartDesign::Pocket", "Pocket003")
body.addObject(pocket4)
pocket4.Profile = sketch6
pocket4.setExpression("Length", "Params.pocket4_length")

# Sketch on XZ plane
sketch7 = doc.addObject("Sketcher::SketchObject", "Sketch006")
body.addObject(sketch7)
sketch7.AttachmentSupport = (doc.XZ_Plane, [""])
sketch7.MapMode = "FlatFace"
sketch7.AttachmentOffset = App.Placement(Vector(0, 0, 75.8), App.Rotation())
sketch7.addGeometry(Part.Circle(Vector(-5, -6.4, 0), Vector(0, 0, 1), 1.2), False)
sketch7.addGeometry(Part.Circle(Vector(5, -6.4, 0), Vector(0, 0, 1), 1.2), False)
sketch7.addConstraint(Sketcher.Constraint("Equal", 0, 1))
sketch7.addConstraint(Sketcher.Constraint("Symmetric", 0, 3, 1, 3, -2))
sketch7.addConstraint(Sketcher.Constraint("Diameter", 0, Q("2.4 mm")))
sketch7.addConstraint(Sketcher.Constraint("DistanceX", 0, 3, -1, 1, Q("5 mm")))
sketch7.addConstraint(Sketcher.Constraint("DistanceY", 0, 3, -1, 1, Q("6.4 mm")))
sketch7.setExpression("Constraints[2]", "Params.sketch7_diameter")
pocket5 = doc.addObject("PartDesign::Pocket", "Pocket004")
body.addObject(pocket5)
pocket5.Profile = sketch7
pocket5.setExpression("Length", "Params.pocket5_length")

# Sketch on XZ plane
sketch8 = doc.addObject("Sketcher::SketchObject", "Sketch007")
body.addObject(sketch8)
sketch8.AttachmentSupport = (doc.XZ_Plane, [""])
sketch8.MapMode = "FlatFace"
sketch8.AttachmentOffset = App.Placement(Vector(0, 0, 4), App.Rotation())
sketch8.addGeometry(Part.LineSegment(Vector(-30, 0, 0), Vector(-30, -4, 0)), False)
sketch8.addGeometry(Part.LineSegment(Vector(-30, -4, 0), Vector(-46.5, -4, 0)), False)
sketch8.addGeometry(Part.LineSegment(Vector(-46.5, -4, 0), Vector(-46.5, 0, 0)), False)
sketch8.addGeometry(Part.LineSegment(Vector(-46.5, 0, 0), Vector(-30, 0, 0)), False)
sketch8.addGeometry(Part.LineSegment(Vector(46.5, 0, 0), Vector(46.5, -4, 0)), False)
sketch8.addGeometry(Part.LineSegment(Vector(46.5, -4, 0), Vector(30, -4, 0)), False)
sketch8.addGeometry(Part.LineSegment(Vector(30, -4, 0), Vector(30, 0, 0)), False)
sketch8.addGeometry(Part.LineSegment(Vector(30, 0, 0), Vector(46.5, 0, 0)), False)
sketch8.addConstraint(Sketcher.Constraint("Coincident", 0, 2, 1, 1))
sketch8.addConstraint(Sketcher.Constraint("Coincident", 1, 2, 2, 1))
sketch8.addConstraint(Sketcher.Constraint("Coincident", 2, 2, 3, 1))
sketch8.addConstraint(Sketcher.Constraint("Coincident", 3, 2, 0, 1))
sketch8.addConstraint(Sketcher.Constraint("Coincident", 4, 2, 5, 1))
sketch8.addConstraint(Sketcher.Constraint("Coincident", 5, 2, 6, 1))
sketch8.addConstraint(Sketcher.Constraint("Coincident", 6, 2, 7, 1))
sketch8.addConstraint(Sketcher.Constraint("Coincident", 7, 2, 4, 1))
sketch8.addConstraint(Sketcher.Constraint("Vertical", 0))
sketch8.addConstraint(Sketcher.Constraint("Horizontal", 1))
sketch8.addConstraint(Sketcher.Constraint("Vertical", 2))
sketch8.addConstraint(Sketcher.Constraint("Horizontal", 3))
sketch8.addConstraint(Sketcher.Constraint("Vertical", 4))
sketch8.addConstraint(Sketcher.Constraint("Horizontal", 5))
sketch8.addConstraint(Sketcher.Constraint("Vertical", 6))
sketch8.addConstraint(Sketcher.Constraint("Horizontal", 7))
sketch8.addConstraint(Sketcher.Constraint("Symmetric", 3, 2, 6, 2, -1, 1))
sketch8.addConstraint(Sketcher.Constraint("Symmetric", 1, 2, 4, 2, -2))
sketch8.addConstraint(Sketcher.Constraint("PointOnObject", 2, 2, -1))
sketch8.addConstraint(Sketcher.Constraint("DistanceY", 0, 2, 0, 1, Q("4 mm")))
sketch8.addConstraint(Sketcher.Constraint("DistanceX", 1, 2, 1, 1, Q("16.5 mm")))
sketch8.addConstraint(Sketcher.Constraint("DistanceX", 0, 2, -1, 1, Q("30 mm")))
sketch8.setExpression("Constraints[19]", "Params.sketch8_height")
sketch8.setExpression("Constraints[20]", "Params.sketch8_width")
pocket6 = doc.addObject("PartDesign::Pocket", "Pocket005")
body.addObject(pocket6)
pocket6.Profile = sketch8
pocket6.setExpression("Length", "Params.pocket6_length")
pocket6.Reversed = True

# Sketch on XZ plane
sketch9 = doc.addObject("Sketcher::SketchObject", "Sketch008")
body.addObject(sketch9)
sketch9.AttachmentSupport = (doc.XZ_Plane, [""])
sketch9.MapMode = "FlatFace"
sketch9.AttachmentOffset = App.Placement(Vector(0, 0, 4.4), App.Rotation())
sketch9.addGeometry(Part.LineSegment(Vector(35, -2, 0), Vector(35, -8, 0)), False)
sketch9.addGeometry(Part.LineSegment(Vector(35, -8, 0), Vector(21, -8, 0)), False)
sketch9.addGeometry(Part.LineSegment(Vector(21, -8, 0), Vector(21, -2, 0)), False)
sketch9.addGeometry(Part.LineSegment(Vector(21, -2, 0), Vector(35, -2, 0)), False)
sketch9.addConstraint(Sketcher.Constraint("Coincident", 0, 2, 1, 1))
sketch9.addConstraint(Sketcher.Constraint("Coincident", 1, 2, 2, 1))
sketch9.addConstraint(Sketcher.Constraint("Coincident", 2, 2, 3, 1))
sketch9.addConstraint(Sketcher.Constraint("Coincident", 3, 2, 0, 1))
sketch9.addConstraint(Sketcher.Constraint("Vertical", 0))
sketch9.addConstraint(Sketcher.Constraint("Horizontal", 1))
sketch9.addConstraint(Sketcher.Constraint("Vertical", 2))
sketch9.addConstraint(Sketcher.Constraint("Horizontal", 3))
sketch9.addConstraint(Sketcher.Constraint("DistanceX", 1, 2, 1, 1, Q("14.4 mm")))
sketch9.addConstraint(Sketcher.Constraint("DistanceY", 0, 2, 0, 1, Q("5.5 mm")))
sketch9.addConstraint(Sketcher.Constraint("DistanceX", -1, 1, 0, 2, Q("35.3 mm")))
sketch9.addConstraint(Sketcher.Constraint("DistanceY", 0, 2, -1, 1, Q("7.8 mm")))
sketch9.setExpression("Constraints[8]", "Params.sketch9_width")
sketch9.setExpression("Constraints[9]", "Params.sketch9_height")
pocket7 = doc.addObject("PartDesign::Pocket", "Pocket006")
body.addObject(pocket7)
pocket7.Profile = sketch9
pocket7.setExpression("Length", "Params.pocket7_length")
pocket7.Reversed = True

# Sketch on YZ plane
sketch10 = doc.addObject("Sketcher::SketchObject", "Sketch009")
body.addObject(sketch10)
sketch10.AttachmentSupport = (doc.YZ_Plane, [""])
sketch10.MapMode = "FlatFace"
sketch10.AttachmentOffset = App.Placement(Vector(0, 0, 61.5), App.Rotation())
sketch10.addGeometry(Part.LineSegment(Vector(-66, -2, 0), Vector(-66, -8, 0)), False)
sketch10.addGeometry(Part.LineSegment(Vector(-66, -8, 0), Vector(-52, -8, 0)), False)
sketch10.addGeometry(Part.LineSegment(Vector(-52, -8, 0), Vector(-52, -2, 0)), False)
sketch10.addGeometry(Part.LineSegment(Vector(-52, -2, 0), Vector(-66, -2, 0)), False)
sketch10.addConstraint(Sketcher.Constraint("Coincident", 0, 2, 1, 1))
sketch10.addConstraint(Sketcher.Constraint("Coincident", 1, 2, 2, 1))
sketch10.addConstraint(Sketcher.Constraint("Coincident", 2, 2, 3, 1))
sketch10.addConstraint(Sketcher.Constraint("Coincident", 3, 2, 0, 1))
sketch10.addConstraint(Sketcher.Constraint("Vertical", 0))
sketch10.addConstraint(Sketcher.Constraint("Horizontal", 1))
sketch10.addConstraint(Sketcher.Constraint("Vertical", 2))
sketch10.addConstraint(Sketcher.Constraint("Horizontal", 3))
sketch10.addConstraint(Sketcher.Constraint("DistanceX", 1, 1, 1, 2, Q("14 mm")))
sketch10.addConstraint(Sketcher.Constraint("DistanceY", 0, 2, 0, 1, Q("6 mm")))
sketch10.addConstraint(Sketcher.Constraint("DistanceY", 0, 2, -1, 1, Q("8 mm")))
sketch10.addConstraint(Sketcher.Constraint("DistanceX", 0, 2, -1, 1, Q("66.2 mm")))
sketch10.setExpression("Constraints[8]", "Params.sketch10_width")
sketch10.setExpression("Constraints[9]", "Params.sketch10_height")
pocket8 = doc.addObject("PartDesign::Pocket", "Pocket007")
body.addObject(pocket8)
pocket8.Profile = sketch10
pocket8.setExpression("Length", "Params.pocket8_length")

# Sketch on YZ plane
sketch11 = doc.addObject("Sketcher::SketchObject", "Sketch010")
body.addObject(sketch11)
sketch11.AttachmentSupport = (doc.YZ_Plane, [""])
sketch11.MapMode = "FlatFace"
sketch11.AttachmentOffset = App.Placement(Vector(0, 0, 61.5), App.Rotation())
sketch11.addGeometry(Part.Circle(Vector(0, 0, 0), Vector(0, 0, 1), 3), False)
sketch11.addConstraint(Sketcher.Constraint("Coincident", 0, 3, -1, 1))
sketch11.addConstraint(Sketcher.Constraint("Diameter", 0, Q("6 mm")))
sketch11.setExpression("Constraints[1]", "Params.sketch11_diameter")
pocket9 = doc.addObject("PartDesign::Pocket", "Pocket008")
body.addObject(pocket9)
pocket9.Profile = sketch11
pocket9.setExpression("Length", "Params.pocket9_length")

# Sketch on YZ plane
sketch12 = doc.addObject("Sketcher::SketchObject", "Sketch011")
body.addObject(sketch12)
sketch12.AttachmentSupport = (doc.YZ_Plane, [""])
sketch12.MapMode = "FlatFace"
sketch12.AttachmentOffset = App.Placement(Vector(0, 0, -61.5), App.Rotation())
sketch12.addGeometry(Part.Circle(Vector(0, 0, 0), Vector(0, 0, 1), 3), False)
sketch12.addConstraint(Sketcher.Constraint("Coincident", 0, 3, -1, 1))
sketch12.addConstraint(Sketcher.Constraint("Diameter", 0, Q("6 mm")))
sketch12.setExpression("Constraints[1]", "Params.sketch12_diameter")
pocket10 = doc.addObject("PartDesign::Pocket", "Pocket009")
body.addObject(pocket10)
pocket10.Profile = sketch12
pocket10.setExpression("Length", "Params.pocket10_length")
pocket10.Reversed = True

doc.recompute()
